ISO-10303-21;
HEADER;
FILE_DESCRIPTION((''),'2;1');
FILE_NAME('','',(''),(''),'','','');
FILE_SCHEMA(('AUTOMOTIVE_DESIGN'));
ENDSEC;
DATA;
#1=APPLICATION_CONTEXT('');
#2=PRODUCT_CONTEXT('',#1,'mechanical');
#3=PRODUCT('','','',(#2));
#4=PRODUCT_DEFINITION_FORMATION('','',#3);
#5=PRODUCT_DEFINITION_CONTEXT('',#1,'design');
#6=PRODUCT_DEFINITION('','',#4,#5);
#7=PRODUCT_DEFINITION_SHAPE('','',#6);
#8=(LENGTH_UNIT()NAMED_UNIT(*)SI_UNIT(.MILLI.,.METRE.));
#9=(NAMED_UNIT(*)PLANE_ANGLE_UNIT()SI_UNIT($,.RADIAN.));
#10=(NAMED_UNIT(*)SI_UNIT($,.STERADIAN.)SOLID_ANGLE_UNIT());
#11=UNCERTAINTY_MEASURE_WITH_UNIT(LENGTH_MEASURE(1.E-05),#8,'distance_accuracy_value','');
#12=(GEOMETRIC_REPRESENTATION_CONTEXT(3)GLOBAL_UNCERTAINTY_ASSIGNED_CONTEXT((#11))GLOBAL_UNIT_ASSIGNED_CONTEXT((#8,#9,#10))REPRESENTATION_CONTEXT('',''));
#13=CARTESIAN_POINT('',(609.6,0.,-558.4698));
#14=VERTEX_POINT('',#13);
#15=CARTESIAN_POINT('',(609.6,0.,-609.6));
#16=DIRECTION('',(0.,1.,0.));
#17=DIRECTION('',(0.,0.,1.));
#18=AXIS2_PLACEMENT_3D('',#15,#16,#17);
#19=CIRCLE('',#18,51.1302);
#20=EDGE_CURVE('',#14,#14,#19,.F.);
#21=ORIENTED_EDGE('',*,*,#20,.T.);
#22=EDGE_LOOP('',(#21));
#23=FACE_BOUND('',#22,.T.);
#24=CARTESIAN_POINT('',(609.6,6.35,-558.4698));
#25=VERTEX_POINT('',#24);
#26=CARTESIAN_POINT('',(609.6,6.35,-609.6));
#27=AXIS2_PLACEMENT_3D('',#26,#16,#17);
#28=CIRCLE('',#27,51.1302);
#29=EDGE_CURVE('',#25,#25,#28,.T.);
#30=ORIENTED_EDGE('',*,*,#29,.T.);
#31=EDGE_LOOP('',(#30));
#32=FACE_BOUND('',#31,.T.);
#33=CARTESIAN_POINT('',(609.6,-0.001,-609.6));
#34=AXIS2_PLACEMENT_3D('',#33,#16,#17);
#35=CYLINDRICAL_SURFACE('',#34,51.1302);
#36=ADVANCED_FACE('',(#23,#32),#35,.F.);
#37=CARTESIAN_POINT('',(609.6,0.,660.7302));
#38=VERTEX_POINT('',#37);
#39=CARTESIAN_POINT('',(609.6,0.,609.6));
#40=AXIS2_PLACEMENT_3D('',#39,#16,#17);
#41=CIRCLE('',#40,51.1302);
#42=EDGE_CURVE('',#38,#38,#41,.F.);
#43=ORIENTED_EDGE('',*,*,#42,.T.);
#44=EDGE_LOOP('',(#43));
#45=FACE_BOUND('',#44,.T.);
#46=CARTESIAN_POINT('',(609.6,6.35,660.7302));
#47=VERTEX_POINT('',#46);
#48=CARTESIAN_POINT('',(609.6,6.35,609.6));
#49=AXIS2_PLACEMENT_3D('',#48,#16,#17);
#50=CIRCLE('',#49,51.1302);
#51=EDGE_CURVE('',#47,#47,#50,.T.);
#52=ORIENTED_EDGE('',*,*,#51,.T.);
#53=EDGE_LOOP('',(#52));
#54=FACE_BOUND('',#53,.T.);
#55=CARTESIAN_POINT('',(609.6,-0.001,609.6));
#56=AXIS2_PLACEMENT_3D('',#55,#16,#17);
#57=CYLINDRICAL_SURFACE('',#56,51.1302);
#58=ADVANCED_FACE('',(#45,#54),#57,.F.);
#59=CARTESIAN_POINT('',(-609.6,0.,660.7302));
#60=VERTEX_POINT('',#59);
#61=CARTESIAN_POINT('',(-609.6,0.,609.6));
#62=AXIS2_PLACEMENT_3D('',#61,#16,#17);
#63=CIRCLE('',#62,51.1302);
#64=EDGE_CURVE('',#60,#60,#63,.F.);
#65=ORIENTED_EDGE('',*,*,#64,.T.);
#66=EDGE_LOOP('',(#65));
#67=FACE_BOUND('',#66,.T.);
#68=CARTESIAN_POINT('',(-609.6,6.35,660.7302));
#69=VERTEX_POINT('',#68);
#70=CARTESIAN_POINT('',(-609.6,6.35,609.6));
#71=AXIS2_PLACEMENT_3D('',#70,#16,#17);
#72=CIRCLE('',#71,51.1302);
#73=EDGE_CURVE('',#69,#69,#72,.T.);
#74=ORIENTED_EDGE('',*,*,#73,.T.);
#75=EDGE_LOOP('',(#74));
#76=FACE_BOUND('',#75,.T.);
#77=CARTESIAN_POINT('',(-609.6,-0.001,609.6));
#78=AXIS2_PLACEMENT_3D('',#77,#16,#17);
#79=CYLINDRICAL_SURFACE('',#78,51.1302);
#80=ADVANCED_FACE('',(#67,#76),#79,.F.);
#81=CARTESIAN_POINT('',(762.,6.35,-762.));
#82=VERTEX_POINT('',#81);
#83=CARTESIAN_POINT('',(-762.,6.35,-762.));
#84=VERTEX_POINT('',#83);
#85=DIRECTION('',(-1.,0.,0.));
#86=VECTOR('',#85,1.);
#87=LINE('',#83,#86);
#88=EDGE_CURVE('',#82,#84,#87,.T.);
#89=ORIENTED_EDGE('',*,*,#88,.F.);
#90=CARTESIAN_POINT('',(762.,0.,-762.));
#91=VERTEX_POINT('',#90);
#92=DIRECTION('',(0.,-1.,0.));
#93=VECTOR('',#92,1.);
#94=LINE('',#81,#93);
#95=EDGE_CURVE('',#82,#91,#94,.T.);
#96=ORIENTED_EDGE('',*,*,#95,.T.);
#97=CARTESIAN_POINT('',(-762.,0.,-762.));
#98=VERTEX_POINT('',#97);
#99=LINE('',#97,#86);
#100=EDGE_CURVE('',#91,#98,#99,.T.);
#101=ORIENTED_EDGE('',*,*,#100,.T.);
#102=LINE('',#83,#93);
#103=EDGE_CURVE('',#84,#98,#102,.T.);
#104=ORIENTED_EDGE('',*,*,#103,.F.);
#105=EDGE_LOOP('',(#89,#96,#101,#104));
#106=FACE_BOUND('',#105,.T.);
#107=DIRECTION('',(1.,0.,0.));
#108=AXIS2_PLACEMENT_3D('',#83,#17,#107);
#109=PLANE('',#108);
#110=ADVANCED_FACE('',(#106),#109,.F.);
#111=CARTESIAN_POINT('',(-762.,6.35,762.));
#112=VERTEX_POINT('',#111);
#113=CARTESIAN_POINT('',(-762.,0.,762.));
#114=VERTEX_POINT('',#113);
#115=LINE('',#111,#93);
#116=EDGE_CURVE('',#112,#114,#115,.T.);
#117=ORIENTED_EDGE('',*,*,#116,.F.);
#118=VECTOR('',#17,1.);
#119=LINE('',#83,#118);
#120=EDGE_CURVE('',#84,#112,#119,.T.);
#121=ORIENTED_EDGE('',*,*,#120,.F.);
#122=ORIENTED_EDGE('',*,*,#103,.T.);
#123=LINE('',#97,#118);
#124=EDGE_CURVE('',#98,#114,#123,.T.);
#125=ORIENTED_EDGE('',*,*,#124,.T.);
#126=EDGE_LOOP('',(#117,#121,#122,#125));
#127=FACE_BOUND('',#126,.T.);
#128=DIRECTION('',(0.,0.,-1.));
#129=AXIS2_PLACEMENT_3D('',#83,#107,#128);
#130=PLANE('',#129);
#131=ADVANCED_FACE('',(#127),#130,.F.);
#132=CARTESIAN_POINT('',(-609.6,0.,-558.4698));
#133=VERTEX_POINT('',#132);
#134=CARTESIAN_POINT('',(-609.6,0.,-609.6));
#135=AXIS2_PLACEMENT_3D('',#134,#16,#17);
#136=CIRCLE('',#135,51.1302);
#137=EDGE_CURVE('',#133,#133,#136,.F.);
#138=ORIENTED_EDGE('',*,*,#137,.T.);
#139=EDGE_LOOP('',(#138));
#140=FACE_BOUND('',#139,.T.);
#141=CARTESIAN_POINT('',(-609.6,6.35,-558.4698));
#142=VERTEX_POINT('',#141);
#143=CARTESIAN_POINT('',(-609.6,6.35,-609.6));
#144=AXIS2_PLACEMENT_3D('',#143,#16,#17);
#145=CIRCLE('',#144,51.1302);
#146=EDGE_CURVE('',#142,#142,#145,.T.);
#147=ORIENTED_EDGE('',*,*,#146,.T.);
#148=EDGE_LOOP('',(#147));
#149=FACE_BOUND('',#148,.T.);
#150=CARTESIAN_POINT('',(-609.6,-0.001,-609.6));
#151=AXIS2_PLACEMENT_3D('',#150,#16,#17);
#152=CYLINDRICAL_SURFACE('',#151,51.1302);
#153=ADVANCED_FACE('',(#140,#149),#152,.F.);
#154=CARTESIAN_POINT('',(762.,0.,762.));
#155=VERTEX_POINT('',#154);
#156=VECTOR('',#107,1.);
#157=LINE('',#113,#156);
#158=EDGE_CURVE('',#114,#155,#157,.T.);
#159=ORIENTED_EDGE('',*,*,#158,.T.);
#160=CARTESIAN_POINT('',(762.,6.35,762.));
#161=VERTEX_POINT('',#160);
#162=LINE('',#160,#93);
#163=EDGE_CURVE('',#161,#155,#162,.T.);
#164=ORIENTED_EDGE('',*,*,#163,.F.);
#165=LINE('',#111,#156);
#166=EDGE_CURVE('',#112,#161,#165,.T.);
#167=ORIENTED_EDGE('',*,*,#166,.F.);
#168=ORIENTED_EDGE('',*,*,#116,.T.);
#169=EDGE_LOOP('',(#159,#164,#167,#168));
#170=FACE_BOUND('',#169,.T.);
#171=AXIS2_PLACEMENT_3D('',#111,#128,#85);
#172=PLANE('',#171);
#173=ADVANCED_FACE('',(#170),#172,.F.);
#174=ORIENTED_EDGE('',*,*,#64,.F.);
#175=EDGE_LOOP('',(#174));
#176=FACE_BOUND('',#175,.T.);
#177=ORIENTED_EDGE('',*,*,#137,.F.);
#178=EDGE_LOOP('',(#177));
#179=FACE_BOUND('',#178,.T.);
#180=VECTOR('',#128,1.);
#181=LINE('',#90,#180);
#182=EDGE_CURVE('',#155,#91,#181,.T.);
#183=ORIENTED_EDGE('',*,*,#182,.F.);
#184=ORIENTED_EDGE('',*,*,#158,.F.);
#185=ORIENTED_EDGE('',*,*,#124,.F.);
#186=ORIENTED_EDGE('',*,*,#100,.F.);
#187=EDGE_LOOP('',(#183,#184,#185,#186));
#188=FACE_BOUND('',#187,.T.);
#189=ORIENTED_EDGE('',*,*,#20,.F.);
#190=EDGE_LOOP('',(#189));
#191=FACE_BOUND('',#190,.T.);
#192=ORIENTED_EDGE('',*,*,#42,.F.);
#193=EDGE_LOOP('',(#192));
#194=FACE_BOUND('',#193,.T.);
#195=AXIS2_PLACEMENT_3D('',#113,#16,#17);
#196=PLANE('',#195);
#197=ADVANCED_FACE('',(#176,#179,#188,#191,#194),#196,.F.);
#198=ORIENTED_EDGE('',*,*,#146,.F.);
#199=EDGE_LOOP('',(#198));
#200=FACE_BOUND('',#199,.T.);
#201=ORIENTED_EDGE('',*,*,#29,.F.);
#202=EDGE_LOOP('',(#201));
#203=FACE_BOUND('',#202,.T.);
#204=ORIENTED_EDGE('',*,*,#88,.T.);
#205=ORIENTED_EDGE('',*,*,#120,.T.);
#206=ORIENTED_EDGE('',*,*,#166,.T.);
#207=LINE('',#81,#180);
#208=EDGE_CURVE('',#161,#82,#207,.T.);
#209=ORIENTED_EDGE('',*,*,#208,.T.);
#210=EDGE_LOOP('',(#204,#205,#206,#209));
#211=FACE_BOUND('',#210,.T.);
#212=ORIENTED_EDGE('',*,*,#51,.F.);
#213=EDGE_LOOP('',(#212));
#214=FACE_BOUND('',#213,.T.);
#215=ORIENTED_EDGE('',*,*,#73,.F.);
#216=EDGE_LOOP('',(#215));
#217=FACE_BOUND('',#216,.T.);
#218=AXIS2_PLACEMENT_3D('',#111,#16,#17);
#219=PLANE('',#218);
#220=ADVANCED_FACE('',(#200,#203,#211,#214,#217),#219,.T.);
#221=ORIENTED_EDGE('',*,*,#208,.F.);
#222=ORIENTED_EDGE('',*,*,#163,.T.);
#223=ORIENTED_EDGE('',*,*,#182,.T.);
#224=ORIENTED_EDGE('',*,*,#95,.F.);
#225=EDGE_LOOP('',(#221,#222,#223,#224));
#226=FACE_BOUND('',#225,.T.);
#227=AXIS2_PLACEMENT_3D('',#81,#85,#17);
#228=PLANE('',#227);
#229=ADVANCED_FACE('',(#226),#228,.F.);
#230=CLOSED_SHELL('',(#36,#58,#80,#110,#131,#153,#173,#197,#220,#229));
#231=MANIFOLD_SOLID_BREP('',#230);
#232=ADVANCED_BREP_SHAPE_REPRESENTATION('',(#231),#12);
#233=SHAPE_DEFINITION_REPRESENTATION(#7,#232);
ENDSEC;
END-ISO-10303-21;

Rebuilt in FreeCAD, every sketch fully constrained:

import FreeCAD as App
import Part
import Sketcher
Q = App.Units.Quantity


def add_polygon(sketch, points):
    """Adds a closed chain of lines whose ends are joined by coincident constraints."""
    first, n = sketch.GeometryCount, len(points)
    for a, b in zip(points, points[1:] + points[:1]):
        sketch.addGeometry(Part.LineSegment(App.Vector(*a, 0), App.Vector(*b, 0)), False)
    for i in range(n):
        sketch.addConstraint(Sketcher.Constraint("Coincident", first + i, 2, first + (i + 1) % n, 1))

doc = App.newDocument("Part")
params = doc.addObject("Spreadsheet::Sheet", "Params")
for row, (alias, value) in enumerate([
    ("sketch1_width", "60 in"),
    ("pad1_length", "0.25 in"),
    ("sketch2_diameter", "4.026 in"),
    ("sketch3_diameter", "4.026 in"),
    ("sketch4_diameter", "4.026 in"),
    ("sketch5_diameter", "4.026 in"),
], start=1):
    params.set(f"A{row}", alias)
    params.set(f"B{row}", "=" + value)
    params.setAlias(f"B{row}", alias)

body = doc.addObject("PartDesign::Body", "Body")

# Sketch on XZ plane
sketch1 = body.newObject("Sketcher::SketchObject", "Sketch")
sketch1.AttachmentSupport = (doc.getObject("XZ_Plane"), [""])
sketch1.MapMode = "FlatFace"
add_polygon(sketch1, [(-762, -762), (-762, 762), (762, 762), (762, -762)])  # lines 0-3
sketch1.addConstraint([
    Sketcher.Constraint("Vertical", 0),
    Sketcher.Constraint("Horizontal", 1),
    Sketcher.Constraint("Vertical", 2),
    Sketcher.Constraint("Horizontal", 3),
    Sketcher.Constraint("Symmetric", 0, 2, 2, 2, -1, 1),
    Sketcher.Constraint("Equal", 3, 0),
    Sketcher.Constraint("DistanceX", 1, 1, 1, 2, Q("60 in")),
])
sketch1.setExpression("Constraints[10]", "Params.sketch1_width")
pad1 = body.newObject("PartDesign::Pad", "Pad")
pad1.Profile = sketch1
pad1.setExpression("Length", "Params.pad1_length")
pad1.Reversed = True

# Sketch on XZ plane
sketch2 = body.newObject("Sketcher::SketchObject", "Sketch001")
sketch2.AttachmentSupport = (doc.getObject("XZ_Plane"), [""])
sketch2.MapMode = "FlatFace"
sketch2.AttachmentOffset = App.Placement(App.Vector(0, 0, -0.25 * 25.4), App.Rotation())
sketch2.addGeometry(Part.Circle(App.Vector(610, -610, 0), App.Vector(0, 0, 1), 51), False)
sketch2.addConstraint([
    Sketcher.Constraint("Diameter", 0, Q("4.026 in")),
    Sketcher.Constraint("DistanceX", -1, 1, 0, 3, Q("24 in")),
    Sketcher.Constraint("DistanceY", 0, 3, -1, 1, Q("24 in")),
])
sketch2.setExpression("Constraints[0]", "Params.sketch2_diameter")
pocket1 = body.newObject("PartDesign::Pocket", "Pocket")
pocket1.Profile = sketch2
pocket1.Type = "UpToFirst"
pocket1.Reversed = True

# Sketch on XZ plane
sketch3 = body.newObject("Sketcher::SketchObject", "Sketch002")
sketch3.AttachmentSupport = (doc.getObject("XZ_Plane"), [""])
sketch3.MapMode = "FlatFace"
sketch3.AttachmentOffset = App.Placement(App.Vector(0, 0, -0.25 * 25.4), App.Rotation())
sketch3.addGeometry(Part.Circle(App.Vector(610, 610, 0), App.Vector(0, 0, 1), 51), False)
sketch3.addConstraint([
    Sketcher.Constraint("Diameter", 0, Q("4.026 in")),
    Sketcher.Constraint("DistanceX", -1, 1, 0, 3, Q("24 in")),
    Sketcher.Constraint("DistanceY", -1, 1, 0, 3, Q("24 in")),
])
sketch3.setExpression("Constraints[0]", "Params.sketch3_diameter")
pocket2 = body.newObject("PartDesign::Pocket", "Pocket001")
pocket2.Profile = sketch3
pocket2.Type = "UpToFirst"
pocket2.Reversed = True

# Sketch on XZ plane
sketch4 = body.newObject("Sketcher::SketchObject", "Sketch003")
sketch4.AttachmentSupport = (doc.getObject("XZ_Plane"), [""])
sketch4.MapMode = "FlatFace"
sketch4.AttachmentOffset = App.Placement(App.Vector(0, 0, -0.25 * 25.4), App.Rotation())
sketch4.addGeometry(Part.Circle(App.Vector(-610, 610, 0), App.Vector(0, 0, 1), 51), False)
sketch4.addConstraint([
    Sketcher.Constraint("Diameter", 0, Q("4.026 in")),
    Sketcher.Constraint("DistanceX", 0, 3, -1, 1, Q("24 in")),
    Sketcher.Constraint("DistanceY", -1, 1, 0, 3, Q("24 in")),
])
sketch4.setExpression("Constraints[0]", "Params.sketch4_diameter")
pocket3 = body.newObject("PartDesign::Pocket", "Pocket002")
pocket3.Profile = sketch4
pocket3.Type = "UpToFirst"
pocket3.Reversed = True

# Sketch on XZ plane
sketch5 = body.newObject("Sketcher::SketchObject", "Sketch004")
sketch5.AttachmentSupport = (doc.getObject("XZ_Plane"), [""])
sketch5.MapMode = "FlatFace"
sketch5.AttachmentOffset = App.Placement(App.Vector(0, 0, -0.25 * 25.4), App.Rotation())
sketch5.addGeometry(Part.Circle(App.Vector(-610, -610, 0), App.Vector(0, 0, 1), 51), False)
sketch5.addConstraint([
    Sketcher.Constraint("Diameter", 0, Q("4.026 in")),
    Sketcher.Constraint("DistanceX", 0, 3, -1, 1, Q("24 in")),
    Sketcher.Constraint("DistanceY", 0, 3, -1, 1, Q("24 in")),
])
sketch5.setExpression("Constraints[0]", "Params.sketch5_diameter")
pocket4 = body.newObject("PartDesign::Pocket", "Pocket003")
pocket4.Profile = sketch5
pocket4.Type = "UpToFirst"
pocket4.Reversed = True

doc.recompute()
